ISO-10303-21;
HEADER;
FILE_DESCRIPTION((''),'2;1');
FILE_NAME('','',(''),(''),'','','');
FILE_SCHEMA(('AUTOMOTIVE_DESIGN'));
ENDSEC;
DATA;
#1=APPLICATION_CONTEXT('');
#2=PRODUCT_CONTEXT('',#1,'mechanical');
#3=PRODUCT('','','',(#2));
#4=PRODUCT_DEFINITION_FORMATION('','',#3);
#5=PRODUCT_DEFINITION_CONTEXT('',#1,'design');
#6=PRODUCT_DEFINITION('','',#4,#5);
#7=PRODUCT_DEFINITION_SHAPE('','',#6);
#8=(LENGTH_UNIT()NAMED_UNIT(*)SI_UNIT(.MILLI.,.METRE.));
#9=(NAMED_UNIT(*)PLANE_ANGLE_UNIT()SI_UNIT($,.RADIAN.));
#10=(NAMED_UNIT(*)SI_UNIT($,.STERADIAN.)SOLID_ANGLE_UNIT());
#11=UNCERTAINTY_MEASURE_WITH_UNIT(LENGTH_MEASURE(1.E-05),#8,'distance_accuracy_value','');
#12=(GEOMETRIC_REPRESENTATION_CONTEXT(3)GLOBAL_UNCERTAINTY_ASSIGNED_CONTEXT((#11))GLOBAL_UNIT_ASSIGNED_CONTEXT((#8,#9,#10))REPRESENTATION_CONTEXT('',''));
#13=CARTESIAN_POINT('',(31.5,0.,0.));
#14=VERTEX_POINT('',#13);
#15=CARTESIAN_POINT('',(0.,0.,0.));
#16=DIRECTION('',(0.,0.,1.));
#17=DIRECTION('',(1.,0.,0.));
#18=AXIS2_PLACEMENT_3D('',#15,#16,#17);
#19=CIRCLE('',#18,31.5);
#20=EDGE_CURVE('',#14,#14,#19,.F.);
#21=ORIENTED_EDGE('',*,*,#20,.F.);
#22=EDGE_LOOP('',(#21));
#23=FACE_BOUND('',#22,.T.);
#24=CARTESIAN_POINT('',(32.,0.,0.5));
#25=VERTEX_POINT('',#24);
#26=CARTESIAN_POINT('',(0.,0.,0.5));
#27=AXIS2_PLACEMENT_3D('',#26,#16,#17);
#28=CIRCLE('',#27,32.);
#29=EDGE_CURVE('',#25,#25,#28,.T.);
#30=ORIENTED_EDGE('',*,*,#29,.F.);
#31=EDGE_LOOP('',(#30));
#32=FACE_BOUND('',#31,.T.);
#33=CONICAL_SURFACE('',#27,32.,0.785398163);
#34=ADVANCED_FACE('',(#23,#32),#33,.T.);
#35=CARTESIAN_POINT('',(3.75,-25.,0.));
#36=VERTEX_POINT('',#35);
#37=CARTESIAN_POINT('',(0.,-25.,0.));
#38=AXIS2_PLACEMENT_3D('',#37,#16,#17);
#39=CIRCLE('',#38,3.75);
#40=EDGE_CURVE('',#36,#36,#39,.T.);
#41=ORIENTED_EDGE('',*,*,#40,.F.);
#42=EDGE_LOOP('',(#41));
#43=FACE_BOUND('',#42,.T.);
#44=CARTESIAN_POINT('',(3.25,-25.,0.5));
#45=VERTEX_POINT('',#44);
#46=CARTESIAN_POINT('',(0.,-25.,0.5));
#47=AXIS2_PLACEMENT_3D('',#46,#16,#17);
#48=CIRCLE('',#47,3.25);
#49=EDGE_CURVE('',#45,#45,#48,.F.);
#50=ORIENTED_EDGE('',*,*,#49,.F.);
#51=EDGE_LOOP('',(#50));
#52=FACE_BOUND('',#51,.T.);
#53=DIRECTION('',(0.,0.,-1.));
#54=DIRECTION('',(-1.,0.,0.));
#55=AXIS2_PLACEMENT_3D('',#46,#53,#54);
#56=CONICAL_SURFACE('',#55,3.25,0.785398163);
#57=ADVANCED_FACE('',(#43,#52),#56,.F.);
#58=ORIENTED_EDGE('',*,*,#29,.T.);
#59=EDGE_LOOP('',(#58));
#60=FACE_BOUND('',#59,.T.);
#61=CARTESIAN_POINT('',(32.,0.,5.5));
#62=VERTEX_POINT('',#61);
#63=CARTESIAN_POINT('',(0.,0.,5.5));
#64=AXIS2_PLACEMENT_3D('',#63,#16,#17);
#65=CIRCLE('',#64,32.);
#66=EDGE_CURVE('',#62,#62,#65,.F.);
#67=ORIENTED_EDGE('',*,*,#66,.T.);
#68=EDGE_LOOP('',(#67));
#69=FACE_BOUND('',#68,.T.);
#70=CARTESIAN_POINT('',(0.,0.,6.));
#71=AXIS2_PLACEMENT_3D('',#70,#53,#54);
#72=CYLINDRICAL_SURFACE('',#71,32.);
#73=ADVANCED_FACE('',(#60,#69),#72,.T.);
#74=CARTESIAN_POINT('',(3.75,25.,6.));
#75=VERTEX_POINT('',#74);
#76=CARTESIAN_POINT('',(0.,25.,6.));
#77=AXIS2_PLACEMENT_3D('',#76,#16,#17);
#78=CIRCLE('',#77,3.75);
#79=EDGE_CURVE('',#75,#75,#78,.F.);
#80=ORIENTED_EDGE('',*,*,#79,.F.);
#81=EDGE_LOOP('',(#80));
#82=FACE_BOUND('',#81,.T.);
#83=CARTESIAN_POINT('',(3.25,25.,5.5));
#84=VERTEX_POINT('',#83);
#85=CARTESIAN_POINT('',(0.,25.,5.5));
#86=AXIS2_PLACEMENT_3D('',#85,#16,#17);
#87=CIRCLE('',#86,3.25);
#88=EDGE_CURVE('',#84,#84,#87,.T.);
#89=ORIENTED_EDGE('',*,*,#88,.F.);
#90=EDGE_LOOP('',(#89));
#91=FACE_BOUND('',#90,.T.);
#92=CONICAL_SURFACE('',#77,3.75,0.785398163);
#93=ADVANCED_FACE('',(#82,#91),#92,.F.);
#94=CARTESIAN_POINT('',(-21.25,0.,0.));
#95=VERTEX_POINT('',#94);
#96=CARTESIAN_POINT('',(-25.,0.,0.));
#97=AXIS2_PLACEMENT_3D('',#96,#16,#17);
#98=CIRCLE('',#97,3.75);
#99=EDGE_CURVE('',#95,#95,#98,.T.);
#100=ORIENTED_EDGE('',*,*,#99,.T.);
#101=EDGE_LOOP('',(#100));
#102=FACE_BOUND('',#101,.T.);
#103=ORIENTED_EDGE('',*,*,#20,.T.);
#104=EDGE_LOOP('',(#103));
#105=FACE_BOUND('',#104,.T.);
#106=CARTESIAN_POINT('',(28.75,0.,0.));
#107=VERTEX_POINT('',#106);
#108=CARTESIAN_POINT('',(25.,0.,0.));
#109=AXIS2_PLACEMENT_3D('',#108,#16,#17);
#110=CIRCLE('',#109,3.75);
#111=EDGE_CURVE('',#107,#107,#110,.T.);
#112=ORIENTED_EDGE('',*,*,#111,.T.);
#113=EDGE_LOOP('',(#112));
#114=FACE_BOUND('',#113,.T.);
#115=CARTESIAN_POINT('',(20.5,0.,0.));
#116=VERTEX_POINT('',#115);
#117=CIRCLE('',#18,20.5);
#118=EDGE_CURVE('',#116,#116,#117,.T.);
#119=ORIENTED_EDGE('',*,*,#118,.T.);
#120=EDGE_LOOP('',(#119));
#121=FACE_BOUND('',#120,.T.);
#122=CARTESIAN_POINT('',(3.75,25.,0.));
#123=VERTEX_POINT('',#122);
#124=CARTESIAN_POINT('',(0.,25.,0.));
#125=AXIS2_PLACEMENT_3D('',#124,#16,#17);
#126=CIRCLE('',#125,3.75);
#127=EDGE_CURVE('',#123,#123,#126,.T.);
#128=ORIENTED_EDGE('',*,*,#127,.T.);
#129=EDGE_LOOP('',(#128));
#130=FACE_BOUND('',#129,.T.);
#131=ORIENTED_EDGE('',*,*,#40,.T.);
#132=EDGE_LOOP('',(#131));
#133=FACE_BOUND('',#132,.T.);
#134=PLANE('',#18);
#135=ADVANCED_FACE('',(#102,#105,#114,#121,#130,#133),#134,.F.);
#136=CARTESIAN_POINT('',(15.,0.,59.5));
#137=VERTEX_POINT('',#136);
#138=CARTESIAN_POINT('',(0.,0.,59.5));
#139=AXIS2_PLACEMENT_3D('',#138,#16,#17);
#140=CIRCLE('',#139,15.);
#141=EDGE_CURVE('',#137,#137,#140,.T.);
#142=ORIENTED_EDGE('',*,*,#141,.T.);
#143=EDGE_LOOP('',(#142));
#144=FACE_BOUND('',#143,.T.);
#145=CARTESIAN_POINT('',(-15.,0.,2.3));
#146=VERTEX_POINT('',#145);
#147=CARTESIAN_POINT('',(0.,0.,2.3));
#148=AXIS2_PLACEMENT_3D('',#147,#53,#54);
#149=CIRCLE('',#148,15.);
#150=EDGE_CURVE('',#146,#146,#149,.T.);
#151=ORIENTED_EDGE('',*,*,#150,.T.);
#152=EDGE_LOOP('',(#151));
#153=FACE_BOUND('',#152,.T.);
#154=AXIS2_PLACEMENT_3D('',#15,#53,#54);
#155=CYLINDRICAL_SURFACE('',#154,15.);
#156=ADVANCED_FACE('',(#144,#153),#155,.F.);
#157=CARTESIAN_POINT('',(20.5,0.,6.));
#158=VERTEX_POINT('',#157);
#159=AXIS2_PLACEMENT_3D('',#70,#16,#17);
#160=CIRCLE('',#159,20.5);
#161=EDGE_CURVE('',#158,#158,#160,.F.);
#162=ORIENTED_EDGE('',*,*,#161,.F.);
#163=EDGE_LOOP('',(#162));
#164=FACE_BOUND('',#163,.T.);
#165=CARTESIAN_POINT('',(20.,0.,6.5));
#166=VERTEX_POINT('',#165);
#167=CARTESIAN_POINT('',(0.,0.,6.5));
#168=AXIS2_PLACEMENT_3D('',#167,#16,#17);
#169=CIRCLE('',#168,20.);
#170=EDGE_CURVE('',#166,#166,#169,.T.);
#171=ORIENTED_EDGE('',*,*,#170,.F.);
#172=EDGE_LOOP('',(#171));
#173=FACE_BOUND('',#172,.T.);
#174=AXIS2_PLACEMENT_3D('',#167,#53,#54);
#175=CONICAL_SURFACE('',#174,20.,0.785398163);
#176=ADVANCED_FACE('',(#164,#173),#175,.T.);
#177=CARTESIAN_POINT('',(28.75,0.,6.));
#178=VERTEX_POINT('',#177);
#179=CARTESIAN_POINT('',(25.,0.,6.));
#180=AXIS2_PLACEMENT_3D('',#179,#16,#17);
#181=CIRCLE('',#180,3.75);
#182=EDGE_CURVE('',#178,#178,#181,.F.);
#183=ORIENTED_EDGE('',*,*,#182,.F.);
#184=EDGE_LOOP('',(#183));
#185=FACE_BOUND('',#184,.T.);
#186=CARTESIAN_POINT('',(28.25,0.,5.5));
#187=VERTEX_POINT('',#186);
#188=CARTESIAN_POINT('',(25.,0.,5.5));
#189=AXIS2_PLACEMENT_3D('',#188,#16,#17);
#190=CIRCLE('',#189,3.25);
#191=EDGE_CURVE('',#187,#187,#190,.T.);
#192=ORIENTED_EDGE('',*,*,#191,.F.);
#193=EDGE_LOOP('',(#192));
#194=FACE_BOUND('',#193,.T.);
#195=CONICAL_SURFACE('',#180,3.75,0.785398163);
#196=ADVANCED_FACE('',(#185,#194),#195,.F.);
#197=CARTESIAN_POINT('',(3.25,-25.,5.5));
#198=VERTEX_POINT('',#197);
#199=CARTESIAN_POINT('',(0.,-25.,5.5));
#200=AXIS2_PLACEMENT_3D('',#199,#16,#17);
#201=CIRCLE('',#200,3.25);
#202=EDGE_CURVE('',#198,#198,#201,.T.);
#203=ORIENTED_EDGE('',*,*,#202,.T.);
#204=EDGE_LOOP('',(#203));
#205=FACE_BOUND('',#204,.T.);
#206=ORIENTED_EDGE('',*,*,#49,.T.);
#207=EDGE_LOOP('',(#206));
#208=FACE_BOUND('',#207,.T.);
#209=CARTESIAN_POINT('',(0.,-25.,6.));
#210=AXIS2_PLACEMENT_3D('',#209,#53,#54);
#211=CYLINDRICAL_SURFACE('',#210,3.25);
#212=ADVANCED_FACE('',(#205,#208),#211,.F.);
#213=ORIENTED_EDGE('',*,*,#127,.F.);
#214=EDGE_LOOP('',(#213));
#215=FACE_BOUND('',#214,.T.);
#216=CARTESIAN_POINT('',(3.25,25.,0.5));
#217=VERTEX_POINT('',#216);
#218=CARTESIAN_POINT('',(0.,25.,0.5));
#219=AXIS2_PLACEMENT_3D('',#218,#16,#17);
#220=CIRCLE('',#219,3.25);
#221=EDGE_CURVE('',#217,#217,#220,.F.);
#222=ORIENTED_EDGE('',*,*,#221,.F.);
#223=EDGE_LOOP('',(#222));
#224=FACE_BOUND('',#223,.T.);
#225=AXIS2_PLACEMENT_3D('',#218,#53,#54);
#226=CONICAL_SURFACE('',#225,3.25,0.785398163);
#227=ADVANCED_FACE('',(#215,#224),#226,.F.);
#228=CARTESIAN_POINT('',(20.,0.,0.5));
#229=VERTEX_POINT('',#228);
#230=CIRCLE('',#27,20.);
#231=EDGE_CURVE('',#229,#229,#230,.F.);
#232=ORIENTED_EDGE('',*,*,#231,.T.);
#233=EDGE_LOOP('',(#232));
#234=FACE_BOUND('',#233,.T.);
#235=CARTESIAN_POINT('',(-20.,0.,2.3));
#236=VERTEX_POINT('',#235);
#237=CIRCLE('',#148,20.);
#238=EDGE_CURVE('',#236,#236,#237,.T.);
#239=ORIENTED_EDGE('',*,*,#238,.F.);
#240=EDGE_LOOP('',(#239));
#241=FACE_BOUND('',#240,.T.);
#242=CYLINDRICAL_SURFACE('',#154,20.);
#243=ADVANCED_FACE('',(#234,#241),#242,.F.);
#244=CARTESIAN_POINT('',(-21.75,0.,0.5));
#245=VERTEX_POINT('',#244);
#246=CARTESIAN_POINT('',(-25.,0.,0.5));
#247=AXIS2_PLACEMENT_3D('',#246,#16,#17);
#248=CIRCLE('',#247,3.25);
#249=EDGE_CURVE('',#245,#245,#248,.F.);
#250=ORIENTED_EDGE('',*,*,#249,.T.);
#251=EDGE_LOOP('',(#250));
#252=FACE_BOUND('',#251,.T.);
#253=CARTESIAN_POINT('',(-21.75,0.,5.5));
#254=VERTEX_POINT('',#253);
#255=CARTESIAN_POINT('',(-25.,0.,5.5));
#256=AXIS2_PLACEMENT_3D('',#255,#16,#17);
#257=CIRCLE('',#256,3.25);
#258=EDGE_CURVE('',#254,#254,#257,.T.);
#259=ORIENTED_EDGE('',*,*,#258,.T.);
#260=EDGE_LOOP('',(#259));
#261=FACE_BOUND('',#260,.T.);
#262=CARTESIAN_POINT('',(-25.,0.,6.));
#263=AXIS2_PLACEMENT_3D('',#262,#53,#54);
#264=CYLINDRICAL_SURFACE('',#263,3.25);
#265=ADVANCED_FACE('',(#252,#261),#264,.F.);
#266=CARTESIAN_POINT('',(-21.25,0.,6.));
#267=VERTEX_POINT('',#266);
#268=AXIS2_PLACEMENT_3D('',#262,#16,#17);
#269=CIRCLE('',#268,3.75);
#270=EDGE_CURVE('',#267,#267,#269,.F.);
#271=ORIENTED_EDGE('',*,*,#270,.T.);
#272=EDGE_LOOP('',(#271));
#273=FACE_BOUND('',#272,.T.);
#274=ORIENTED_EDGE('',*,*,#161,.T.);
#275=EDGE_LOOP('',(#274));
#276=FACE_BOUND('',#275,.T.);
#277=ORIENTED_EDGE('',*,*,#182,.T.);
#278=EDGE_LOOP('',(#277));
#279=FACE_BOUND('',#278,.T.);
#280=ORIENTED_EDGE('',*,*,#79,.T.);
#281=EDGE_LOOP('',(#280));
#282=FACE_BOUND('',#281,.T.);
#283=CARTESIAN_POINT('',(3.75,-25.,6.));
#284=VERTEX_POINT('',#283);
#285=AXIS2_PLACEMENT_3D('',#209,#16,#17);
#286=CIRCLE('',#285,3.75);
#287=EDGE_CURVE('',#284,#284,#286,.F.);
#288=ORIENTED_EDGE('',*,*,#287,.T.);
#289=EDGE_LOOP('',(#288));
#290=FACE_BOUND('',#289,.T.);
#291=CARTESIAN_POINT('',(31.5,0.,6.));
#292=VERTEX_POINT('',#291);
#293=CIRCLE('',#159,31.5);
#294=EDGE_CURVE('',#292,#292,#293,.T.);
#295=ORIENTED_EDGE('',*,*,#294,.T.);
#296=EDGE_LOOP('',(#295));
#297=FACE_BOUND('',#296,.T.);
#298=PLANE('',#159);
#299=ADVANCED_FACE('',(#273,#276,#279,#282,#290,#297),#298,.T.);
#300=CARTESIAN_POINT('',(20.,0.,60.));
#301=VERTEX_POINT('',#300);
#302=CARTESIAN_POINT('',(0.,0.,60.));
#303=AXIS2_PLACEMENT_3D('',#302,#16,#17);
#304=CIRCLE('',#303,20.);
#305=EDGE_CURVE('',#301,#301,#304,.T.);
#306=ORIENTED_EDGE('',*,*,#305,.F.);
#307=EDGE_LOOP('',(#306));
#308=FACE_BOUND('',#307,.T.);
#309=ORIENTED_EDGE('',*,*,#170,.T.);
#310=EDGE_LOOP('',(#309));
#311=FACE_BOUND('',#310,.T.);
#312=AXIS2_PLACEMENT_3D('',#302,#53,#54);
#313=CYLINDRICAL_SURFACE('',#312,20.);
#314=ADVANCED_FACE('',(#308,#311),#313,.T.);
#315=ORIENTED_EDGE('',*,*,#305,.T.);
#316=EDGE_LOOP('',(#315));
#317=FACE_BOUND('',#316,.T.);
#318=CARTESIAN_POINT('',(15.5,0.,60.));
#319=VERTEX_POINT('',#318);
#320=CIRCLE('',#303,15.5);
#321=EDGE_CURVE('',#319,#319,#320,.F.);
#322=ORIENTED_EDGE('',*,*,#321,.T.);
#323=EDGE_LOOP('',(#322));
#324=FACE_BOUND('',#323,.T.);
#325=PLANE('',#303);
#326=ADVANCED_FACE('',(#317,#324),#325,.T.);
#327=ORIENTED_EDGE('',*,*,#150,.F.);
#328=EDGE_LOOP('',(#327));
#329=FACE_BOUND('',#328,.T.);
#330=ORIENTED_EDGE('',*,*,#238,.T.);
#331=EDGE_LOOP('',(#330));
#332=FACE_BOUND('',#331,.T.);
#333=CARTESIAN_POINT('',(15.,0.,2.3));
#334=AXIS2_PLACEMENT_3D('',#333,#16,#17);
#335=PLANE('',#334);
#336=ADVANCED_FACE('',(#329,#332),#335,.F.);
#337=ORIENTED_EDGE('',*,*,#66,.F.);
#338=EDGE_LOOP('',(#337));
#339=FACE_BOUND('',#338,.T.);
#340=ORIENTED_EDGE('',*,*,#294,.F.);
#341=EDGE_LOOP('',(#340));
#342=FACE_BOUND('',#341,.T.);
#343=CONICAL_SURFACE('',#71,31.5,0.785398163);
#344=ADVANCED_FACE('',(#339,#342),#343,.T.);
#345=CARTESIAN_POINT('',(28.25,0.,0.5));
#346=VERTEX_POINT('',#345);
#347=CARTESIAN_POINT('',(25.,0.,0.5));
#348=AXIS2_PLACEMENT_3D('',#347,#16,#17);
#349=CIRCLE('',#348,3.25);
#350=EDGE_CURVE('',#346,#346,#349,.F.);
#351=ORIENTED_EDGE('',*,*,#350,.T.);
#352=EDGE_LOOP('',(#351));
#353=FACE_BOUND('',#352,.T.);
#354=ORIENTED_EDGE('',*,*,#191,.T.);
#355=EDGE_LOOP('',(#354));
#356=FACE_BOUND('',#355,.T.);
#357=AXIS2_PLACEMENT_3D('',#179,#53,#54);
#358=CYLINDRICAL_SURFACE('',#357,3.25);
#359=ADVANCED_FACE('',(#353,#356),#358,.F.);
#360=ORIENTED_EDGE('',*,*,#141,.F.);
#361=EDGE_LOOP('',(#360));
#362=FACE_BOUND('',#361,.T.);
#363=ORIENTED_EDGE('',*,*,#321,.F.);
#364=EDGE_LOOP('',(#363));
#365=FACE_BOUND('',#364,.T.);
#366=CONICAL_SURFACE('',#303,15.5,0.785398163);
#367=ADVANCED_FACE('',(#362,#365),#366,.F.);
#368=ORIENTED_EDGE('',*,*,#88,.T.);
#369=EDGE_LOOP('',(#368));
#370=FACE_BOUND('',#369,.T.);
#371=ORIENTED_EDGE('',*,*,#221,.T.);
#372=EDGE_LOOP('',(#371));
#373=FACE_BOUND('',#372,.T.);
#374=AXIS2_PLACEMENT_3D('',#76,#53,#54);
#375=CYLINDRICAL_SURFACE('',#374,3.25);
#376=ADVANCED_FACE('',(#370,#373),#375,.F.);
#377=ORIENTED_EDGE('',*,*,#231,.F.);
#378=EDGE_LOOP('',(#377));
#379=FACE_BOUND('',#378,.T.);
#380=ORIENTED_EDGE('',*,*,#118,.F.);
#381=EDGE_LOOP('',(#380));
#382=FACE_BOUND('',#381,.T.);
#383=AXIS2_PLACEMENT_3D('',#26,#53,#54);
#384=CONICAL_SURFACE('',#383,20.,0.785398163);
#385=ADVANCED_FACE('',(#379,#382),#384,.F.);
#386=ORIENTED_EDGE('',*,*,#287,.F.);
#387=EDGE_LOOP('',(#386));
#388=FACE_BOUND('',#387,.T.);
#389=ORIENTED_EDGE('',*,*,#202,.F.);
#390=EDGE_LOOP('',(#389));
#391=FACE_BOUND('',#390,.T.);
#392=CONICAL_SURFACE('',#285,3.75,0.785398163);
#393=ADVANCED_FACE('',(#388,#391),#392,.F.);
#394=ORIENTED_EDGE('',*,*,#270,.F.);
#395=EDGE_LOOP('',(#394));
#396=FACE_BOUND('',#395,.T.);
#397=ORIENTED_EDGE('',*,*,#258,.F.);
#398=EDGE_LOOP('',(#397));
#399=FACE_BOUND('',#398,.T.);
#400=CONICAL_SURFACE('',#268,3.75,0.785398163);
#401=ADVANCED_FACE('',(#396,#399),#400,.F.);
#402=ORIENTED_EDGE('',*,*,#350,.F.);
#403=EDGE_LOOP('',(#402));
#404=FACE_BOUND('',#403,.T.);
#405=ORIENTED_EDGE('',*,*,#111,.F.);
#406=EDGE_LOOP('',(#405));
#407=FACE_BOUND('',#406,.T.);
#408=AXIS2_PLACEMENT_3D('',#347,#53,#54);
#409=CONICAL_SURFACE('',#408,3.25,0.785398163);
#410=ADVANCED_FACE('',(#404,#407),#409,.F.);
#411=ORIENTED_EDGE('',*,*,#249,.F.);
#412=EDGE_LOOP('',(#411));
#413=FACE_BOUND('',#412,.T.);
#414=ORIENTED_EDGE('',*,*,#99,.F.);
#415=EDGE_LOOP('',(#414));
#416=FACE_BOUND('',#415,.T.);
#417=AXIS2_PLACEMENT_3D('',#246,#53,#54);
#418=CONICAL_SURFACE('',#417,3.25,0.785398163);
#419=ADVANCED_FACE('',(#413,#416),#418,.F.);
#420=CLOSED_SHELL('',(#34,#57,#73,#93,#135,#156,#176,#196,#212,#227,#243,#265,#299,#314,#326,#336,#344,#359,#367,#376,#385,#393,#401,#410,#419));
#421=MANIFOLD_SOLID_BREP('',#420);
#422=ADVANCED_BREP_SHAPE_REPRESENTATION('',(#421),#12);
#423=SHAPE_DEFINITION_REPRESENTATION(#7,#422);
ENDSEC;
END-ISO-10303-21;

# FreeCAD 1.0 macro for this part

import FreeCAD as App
import Part
import Sketcher
from FreeCAD import Vector
Q = App.Units.Quantity


def edges_at(feature, points):
    """Names of the edges that pass closest to the given points."""
    edges = feature.Shape.Edges
    near = lambda p: min(range(len(edges)), key=lambda i: edges[i].distToShape(Part.Vertex(*p))[0])
    return sorted({f"Edge{near(p) + 1}" for p in points})

doc = App.newDocument("Part")
params = doc.addObject("Spreadsheet::Sheet", "Params")
for row, (alias, value) in enumerate([
    ("sketch1_diameter", "64 mm"),
    ("sketch1_diameter2", "40 mm"),
    ("pad1_length", "6 mm"),
    ("sketch2_diameter", "40 mm"),
    ("pad2_length", "60 mm"),
    ("sketch3_diameter", "30 mm"),
    ("hole_diameter", "30 mm"),
    ("hole_cbore_diameter", "40 mm"),
    ("hole_cbore_depth", "2.3 mm"),
    ("sketch4_diameter", "6.5 mm"),
    ("pocket1_length", "6 mm"),
    ("chamfer_size", "0.5 mm"),
], start=1):
    params.set(f"A{row}", alias)
    params.set(f"B{row}", "=" + value)
    params.setAlias(f"B{row}", alias)

body = doc.addObject("PartDesign::Body", "Body")

sketch1 = doc.addObject("Sketcher::SketchObject", "Sketch")
body.addObject(sketch1)
sketch1.AttachmentSupport = (doc.XY_Plane, [""])
sketch1.MapMode = "FlatFace"
sketch1.addGeometry([
    Part.Circle(Vector(0, 0, 0), Vector(0, 0, 1), 32),
    Part.Circle(Vector(0, 0, 0), Vector(0, 0, 1), 20),
], False)
sketch1.addConstraint([
    Sketcher.Constraint("Coincident", 0, 3, -1, 1),
    Sketcher.Constraint("Coincident", 1, 3, -1, 1),
    Sketcher.Constraint("Diameter", 0, Q("64 mm")),
    Sketcher.Constraint("Diameter", 1, Q("40 mm")),
])
sketch1.setExpression("Constraints[2]", "Params.sketch1_diameter")
sketch1.setExpression("Constraints[3]", "Params.sketch1_diameter2")
pad1 = doc.addObject("PartDesign::Pad", "Pad")
body.addObject(pad1)
pad1.Profile = sketch1
pad1.setExpression("Length", "Params.pad1_length")

sketch2 = doc.addObject("Sketcher::SketchObject", "Sketch001")
body.addObject(sketch2)
sketch2.AttachmentSupport = (doc.XY_Plane, [""])
sketch2.MapMode = "FlatFace"
sketch2.addGeometry(Part.Circle(Vector(0, 0, 0), Vector(0, 0, 1), 20), False)
sketch2.addConstraint([
    Sketcher.Constraint("Coincident", 0, 3, -1, 1),
    Sketcher.Constraint("Diameter", 0, Q("40 mm")),
])
sketch2.setExpression("Constraints[1]", "Params.sketch2_diameter")
pad2 = doc.addObject("PartDesign::Pad", "Pad001")
body.addObject(pad2)
pad2.Profile = sketch2
pad2.setExpression("Length", "Params.pad2_length")

sketch3 = doc.addObject("Sketcher::SketchObject", "Sketch002")
body.addObject(sketch3)
sketch3.AttachmentSupport = (doc.XY_Plane, [""])
sketch3.MapMode = "FlatFace"
sketch3.addGeometry(Part.Circle(Vector(0, 0, 0), Vector(0, 0, 1), 15), False)
sketch3.addConstraint([
    Sketcher.Constraint("Coincident", 0, 3, -1, 1),
    Sketcher.Constraint("Diameter", 0, Q("30 mm")),
])
sketch3.setExpression("Constraints[1]", "Params.sketch3_diameter")
doc.recompute()
hole = doc.addObject("PartDesign::Hole", "Hole")
body.addObject(hole)
hole.Profile = sketch3
hole.ThreadType = "None"
hole.setExpression("Diameter", "Params.hole_diameter")
hole.DepthType = "ThroughAll"
hole.HoleCutType = "Counterbore"
hole.setExpression("HoleCutDiameter", "Params.hole_cbore_diameter")
hole.setExpression("HoleCutDepth", "Params.hole_cbore_depth")
hole.Reversed = True

sketch4 = doc.addObject("Sketcher::SketchObject", "Sketch003")
body.addObject(sketch4)
sketch4.AttachmentSupport = (doc.XY_Plane, [""])
sketch4.MapMode = "FlatFace"
sketch4.addGeometry([
    Part.Circle(Vector(0, 25, 0), Vector(0, 0, 1), 3.2),
    Part.Circle(Vector(-25, 0, 0), Vector(0, 0, 1), 3.2),
    Part.Circle(Vector(0, -25, 0), Vector(0, 0, 1), 3.2),
    Part.Circle(Vector(25, 0, 0), Vector(0, 0, 1), 3.2),
], False)
sketch4.addConstraint([
    Sketcher.Constraint("Equal", 0, 1),
    Sketcher.Constraint("Equal", 1, 2),
    Sketcher.Constraint("Equal", 2, 3),
    Sketcher.Constraint("Symmetric", 0, 3, 2, 3, -1, 1),
    Sketcher.Constraint("Symmetric", 1, 3, 3, 3, -1, 1),
    Sketcher.Constraint("PointOnObject", 0, 3, -2),
    Sketcher.Constraint("PointOnObject", 1, 3, -1),
    Sketcher.Constraint("Diameter", 0, Q("6.5 mm")),
    Sketcher.Constraint("DistanceY", -1, 1, 0, 3, Q("25 mm")),
    Sketcher.Constraint("DistanceX", 1, 3, -1, 1, Q("25 mm")),
])
sketch4.setExpression("Constraints[7]", "Params.sketch4_diameter")
pocket1 = doc.addObject("PartDesign::Pocket", "Pocket")
body.addObject(pocket1)
pocket1.Profile = sketch4
pocket1.setExpression("Length", "Params.pocket1_length")
pocket1.Reversed = True
doc.recompute()

chamfer = doc.addObject("PartDesign::Chamfer", "Chamfer")
body.addObject(chamfer)
chamfer.Base = (pocket1, edges_at(pocket1, [
    (20, 0, 0),
    (-15, 0, 60),
    (-32, 0, 0),
    (3.25, 25, 6),
    (3.25, 25, 0),
    (-21.75, 0, 6),
    (-21.75, 0, 0),
    (3.25, -25, 6),
    (3.25, -25, 0),
    (28.25, 0, 6),
    (28.25, 0, 0),
    (-32, 0, 6),
    (-20, 0, 6),
]))
chamfer.setExpression("Size", "Params.chamfer_size")

doc.recompute()
